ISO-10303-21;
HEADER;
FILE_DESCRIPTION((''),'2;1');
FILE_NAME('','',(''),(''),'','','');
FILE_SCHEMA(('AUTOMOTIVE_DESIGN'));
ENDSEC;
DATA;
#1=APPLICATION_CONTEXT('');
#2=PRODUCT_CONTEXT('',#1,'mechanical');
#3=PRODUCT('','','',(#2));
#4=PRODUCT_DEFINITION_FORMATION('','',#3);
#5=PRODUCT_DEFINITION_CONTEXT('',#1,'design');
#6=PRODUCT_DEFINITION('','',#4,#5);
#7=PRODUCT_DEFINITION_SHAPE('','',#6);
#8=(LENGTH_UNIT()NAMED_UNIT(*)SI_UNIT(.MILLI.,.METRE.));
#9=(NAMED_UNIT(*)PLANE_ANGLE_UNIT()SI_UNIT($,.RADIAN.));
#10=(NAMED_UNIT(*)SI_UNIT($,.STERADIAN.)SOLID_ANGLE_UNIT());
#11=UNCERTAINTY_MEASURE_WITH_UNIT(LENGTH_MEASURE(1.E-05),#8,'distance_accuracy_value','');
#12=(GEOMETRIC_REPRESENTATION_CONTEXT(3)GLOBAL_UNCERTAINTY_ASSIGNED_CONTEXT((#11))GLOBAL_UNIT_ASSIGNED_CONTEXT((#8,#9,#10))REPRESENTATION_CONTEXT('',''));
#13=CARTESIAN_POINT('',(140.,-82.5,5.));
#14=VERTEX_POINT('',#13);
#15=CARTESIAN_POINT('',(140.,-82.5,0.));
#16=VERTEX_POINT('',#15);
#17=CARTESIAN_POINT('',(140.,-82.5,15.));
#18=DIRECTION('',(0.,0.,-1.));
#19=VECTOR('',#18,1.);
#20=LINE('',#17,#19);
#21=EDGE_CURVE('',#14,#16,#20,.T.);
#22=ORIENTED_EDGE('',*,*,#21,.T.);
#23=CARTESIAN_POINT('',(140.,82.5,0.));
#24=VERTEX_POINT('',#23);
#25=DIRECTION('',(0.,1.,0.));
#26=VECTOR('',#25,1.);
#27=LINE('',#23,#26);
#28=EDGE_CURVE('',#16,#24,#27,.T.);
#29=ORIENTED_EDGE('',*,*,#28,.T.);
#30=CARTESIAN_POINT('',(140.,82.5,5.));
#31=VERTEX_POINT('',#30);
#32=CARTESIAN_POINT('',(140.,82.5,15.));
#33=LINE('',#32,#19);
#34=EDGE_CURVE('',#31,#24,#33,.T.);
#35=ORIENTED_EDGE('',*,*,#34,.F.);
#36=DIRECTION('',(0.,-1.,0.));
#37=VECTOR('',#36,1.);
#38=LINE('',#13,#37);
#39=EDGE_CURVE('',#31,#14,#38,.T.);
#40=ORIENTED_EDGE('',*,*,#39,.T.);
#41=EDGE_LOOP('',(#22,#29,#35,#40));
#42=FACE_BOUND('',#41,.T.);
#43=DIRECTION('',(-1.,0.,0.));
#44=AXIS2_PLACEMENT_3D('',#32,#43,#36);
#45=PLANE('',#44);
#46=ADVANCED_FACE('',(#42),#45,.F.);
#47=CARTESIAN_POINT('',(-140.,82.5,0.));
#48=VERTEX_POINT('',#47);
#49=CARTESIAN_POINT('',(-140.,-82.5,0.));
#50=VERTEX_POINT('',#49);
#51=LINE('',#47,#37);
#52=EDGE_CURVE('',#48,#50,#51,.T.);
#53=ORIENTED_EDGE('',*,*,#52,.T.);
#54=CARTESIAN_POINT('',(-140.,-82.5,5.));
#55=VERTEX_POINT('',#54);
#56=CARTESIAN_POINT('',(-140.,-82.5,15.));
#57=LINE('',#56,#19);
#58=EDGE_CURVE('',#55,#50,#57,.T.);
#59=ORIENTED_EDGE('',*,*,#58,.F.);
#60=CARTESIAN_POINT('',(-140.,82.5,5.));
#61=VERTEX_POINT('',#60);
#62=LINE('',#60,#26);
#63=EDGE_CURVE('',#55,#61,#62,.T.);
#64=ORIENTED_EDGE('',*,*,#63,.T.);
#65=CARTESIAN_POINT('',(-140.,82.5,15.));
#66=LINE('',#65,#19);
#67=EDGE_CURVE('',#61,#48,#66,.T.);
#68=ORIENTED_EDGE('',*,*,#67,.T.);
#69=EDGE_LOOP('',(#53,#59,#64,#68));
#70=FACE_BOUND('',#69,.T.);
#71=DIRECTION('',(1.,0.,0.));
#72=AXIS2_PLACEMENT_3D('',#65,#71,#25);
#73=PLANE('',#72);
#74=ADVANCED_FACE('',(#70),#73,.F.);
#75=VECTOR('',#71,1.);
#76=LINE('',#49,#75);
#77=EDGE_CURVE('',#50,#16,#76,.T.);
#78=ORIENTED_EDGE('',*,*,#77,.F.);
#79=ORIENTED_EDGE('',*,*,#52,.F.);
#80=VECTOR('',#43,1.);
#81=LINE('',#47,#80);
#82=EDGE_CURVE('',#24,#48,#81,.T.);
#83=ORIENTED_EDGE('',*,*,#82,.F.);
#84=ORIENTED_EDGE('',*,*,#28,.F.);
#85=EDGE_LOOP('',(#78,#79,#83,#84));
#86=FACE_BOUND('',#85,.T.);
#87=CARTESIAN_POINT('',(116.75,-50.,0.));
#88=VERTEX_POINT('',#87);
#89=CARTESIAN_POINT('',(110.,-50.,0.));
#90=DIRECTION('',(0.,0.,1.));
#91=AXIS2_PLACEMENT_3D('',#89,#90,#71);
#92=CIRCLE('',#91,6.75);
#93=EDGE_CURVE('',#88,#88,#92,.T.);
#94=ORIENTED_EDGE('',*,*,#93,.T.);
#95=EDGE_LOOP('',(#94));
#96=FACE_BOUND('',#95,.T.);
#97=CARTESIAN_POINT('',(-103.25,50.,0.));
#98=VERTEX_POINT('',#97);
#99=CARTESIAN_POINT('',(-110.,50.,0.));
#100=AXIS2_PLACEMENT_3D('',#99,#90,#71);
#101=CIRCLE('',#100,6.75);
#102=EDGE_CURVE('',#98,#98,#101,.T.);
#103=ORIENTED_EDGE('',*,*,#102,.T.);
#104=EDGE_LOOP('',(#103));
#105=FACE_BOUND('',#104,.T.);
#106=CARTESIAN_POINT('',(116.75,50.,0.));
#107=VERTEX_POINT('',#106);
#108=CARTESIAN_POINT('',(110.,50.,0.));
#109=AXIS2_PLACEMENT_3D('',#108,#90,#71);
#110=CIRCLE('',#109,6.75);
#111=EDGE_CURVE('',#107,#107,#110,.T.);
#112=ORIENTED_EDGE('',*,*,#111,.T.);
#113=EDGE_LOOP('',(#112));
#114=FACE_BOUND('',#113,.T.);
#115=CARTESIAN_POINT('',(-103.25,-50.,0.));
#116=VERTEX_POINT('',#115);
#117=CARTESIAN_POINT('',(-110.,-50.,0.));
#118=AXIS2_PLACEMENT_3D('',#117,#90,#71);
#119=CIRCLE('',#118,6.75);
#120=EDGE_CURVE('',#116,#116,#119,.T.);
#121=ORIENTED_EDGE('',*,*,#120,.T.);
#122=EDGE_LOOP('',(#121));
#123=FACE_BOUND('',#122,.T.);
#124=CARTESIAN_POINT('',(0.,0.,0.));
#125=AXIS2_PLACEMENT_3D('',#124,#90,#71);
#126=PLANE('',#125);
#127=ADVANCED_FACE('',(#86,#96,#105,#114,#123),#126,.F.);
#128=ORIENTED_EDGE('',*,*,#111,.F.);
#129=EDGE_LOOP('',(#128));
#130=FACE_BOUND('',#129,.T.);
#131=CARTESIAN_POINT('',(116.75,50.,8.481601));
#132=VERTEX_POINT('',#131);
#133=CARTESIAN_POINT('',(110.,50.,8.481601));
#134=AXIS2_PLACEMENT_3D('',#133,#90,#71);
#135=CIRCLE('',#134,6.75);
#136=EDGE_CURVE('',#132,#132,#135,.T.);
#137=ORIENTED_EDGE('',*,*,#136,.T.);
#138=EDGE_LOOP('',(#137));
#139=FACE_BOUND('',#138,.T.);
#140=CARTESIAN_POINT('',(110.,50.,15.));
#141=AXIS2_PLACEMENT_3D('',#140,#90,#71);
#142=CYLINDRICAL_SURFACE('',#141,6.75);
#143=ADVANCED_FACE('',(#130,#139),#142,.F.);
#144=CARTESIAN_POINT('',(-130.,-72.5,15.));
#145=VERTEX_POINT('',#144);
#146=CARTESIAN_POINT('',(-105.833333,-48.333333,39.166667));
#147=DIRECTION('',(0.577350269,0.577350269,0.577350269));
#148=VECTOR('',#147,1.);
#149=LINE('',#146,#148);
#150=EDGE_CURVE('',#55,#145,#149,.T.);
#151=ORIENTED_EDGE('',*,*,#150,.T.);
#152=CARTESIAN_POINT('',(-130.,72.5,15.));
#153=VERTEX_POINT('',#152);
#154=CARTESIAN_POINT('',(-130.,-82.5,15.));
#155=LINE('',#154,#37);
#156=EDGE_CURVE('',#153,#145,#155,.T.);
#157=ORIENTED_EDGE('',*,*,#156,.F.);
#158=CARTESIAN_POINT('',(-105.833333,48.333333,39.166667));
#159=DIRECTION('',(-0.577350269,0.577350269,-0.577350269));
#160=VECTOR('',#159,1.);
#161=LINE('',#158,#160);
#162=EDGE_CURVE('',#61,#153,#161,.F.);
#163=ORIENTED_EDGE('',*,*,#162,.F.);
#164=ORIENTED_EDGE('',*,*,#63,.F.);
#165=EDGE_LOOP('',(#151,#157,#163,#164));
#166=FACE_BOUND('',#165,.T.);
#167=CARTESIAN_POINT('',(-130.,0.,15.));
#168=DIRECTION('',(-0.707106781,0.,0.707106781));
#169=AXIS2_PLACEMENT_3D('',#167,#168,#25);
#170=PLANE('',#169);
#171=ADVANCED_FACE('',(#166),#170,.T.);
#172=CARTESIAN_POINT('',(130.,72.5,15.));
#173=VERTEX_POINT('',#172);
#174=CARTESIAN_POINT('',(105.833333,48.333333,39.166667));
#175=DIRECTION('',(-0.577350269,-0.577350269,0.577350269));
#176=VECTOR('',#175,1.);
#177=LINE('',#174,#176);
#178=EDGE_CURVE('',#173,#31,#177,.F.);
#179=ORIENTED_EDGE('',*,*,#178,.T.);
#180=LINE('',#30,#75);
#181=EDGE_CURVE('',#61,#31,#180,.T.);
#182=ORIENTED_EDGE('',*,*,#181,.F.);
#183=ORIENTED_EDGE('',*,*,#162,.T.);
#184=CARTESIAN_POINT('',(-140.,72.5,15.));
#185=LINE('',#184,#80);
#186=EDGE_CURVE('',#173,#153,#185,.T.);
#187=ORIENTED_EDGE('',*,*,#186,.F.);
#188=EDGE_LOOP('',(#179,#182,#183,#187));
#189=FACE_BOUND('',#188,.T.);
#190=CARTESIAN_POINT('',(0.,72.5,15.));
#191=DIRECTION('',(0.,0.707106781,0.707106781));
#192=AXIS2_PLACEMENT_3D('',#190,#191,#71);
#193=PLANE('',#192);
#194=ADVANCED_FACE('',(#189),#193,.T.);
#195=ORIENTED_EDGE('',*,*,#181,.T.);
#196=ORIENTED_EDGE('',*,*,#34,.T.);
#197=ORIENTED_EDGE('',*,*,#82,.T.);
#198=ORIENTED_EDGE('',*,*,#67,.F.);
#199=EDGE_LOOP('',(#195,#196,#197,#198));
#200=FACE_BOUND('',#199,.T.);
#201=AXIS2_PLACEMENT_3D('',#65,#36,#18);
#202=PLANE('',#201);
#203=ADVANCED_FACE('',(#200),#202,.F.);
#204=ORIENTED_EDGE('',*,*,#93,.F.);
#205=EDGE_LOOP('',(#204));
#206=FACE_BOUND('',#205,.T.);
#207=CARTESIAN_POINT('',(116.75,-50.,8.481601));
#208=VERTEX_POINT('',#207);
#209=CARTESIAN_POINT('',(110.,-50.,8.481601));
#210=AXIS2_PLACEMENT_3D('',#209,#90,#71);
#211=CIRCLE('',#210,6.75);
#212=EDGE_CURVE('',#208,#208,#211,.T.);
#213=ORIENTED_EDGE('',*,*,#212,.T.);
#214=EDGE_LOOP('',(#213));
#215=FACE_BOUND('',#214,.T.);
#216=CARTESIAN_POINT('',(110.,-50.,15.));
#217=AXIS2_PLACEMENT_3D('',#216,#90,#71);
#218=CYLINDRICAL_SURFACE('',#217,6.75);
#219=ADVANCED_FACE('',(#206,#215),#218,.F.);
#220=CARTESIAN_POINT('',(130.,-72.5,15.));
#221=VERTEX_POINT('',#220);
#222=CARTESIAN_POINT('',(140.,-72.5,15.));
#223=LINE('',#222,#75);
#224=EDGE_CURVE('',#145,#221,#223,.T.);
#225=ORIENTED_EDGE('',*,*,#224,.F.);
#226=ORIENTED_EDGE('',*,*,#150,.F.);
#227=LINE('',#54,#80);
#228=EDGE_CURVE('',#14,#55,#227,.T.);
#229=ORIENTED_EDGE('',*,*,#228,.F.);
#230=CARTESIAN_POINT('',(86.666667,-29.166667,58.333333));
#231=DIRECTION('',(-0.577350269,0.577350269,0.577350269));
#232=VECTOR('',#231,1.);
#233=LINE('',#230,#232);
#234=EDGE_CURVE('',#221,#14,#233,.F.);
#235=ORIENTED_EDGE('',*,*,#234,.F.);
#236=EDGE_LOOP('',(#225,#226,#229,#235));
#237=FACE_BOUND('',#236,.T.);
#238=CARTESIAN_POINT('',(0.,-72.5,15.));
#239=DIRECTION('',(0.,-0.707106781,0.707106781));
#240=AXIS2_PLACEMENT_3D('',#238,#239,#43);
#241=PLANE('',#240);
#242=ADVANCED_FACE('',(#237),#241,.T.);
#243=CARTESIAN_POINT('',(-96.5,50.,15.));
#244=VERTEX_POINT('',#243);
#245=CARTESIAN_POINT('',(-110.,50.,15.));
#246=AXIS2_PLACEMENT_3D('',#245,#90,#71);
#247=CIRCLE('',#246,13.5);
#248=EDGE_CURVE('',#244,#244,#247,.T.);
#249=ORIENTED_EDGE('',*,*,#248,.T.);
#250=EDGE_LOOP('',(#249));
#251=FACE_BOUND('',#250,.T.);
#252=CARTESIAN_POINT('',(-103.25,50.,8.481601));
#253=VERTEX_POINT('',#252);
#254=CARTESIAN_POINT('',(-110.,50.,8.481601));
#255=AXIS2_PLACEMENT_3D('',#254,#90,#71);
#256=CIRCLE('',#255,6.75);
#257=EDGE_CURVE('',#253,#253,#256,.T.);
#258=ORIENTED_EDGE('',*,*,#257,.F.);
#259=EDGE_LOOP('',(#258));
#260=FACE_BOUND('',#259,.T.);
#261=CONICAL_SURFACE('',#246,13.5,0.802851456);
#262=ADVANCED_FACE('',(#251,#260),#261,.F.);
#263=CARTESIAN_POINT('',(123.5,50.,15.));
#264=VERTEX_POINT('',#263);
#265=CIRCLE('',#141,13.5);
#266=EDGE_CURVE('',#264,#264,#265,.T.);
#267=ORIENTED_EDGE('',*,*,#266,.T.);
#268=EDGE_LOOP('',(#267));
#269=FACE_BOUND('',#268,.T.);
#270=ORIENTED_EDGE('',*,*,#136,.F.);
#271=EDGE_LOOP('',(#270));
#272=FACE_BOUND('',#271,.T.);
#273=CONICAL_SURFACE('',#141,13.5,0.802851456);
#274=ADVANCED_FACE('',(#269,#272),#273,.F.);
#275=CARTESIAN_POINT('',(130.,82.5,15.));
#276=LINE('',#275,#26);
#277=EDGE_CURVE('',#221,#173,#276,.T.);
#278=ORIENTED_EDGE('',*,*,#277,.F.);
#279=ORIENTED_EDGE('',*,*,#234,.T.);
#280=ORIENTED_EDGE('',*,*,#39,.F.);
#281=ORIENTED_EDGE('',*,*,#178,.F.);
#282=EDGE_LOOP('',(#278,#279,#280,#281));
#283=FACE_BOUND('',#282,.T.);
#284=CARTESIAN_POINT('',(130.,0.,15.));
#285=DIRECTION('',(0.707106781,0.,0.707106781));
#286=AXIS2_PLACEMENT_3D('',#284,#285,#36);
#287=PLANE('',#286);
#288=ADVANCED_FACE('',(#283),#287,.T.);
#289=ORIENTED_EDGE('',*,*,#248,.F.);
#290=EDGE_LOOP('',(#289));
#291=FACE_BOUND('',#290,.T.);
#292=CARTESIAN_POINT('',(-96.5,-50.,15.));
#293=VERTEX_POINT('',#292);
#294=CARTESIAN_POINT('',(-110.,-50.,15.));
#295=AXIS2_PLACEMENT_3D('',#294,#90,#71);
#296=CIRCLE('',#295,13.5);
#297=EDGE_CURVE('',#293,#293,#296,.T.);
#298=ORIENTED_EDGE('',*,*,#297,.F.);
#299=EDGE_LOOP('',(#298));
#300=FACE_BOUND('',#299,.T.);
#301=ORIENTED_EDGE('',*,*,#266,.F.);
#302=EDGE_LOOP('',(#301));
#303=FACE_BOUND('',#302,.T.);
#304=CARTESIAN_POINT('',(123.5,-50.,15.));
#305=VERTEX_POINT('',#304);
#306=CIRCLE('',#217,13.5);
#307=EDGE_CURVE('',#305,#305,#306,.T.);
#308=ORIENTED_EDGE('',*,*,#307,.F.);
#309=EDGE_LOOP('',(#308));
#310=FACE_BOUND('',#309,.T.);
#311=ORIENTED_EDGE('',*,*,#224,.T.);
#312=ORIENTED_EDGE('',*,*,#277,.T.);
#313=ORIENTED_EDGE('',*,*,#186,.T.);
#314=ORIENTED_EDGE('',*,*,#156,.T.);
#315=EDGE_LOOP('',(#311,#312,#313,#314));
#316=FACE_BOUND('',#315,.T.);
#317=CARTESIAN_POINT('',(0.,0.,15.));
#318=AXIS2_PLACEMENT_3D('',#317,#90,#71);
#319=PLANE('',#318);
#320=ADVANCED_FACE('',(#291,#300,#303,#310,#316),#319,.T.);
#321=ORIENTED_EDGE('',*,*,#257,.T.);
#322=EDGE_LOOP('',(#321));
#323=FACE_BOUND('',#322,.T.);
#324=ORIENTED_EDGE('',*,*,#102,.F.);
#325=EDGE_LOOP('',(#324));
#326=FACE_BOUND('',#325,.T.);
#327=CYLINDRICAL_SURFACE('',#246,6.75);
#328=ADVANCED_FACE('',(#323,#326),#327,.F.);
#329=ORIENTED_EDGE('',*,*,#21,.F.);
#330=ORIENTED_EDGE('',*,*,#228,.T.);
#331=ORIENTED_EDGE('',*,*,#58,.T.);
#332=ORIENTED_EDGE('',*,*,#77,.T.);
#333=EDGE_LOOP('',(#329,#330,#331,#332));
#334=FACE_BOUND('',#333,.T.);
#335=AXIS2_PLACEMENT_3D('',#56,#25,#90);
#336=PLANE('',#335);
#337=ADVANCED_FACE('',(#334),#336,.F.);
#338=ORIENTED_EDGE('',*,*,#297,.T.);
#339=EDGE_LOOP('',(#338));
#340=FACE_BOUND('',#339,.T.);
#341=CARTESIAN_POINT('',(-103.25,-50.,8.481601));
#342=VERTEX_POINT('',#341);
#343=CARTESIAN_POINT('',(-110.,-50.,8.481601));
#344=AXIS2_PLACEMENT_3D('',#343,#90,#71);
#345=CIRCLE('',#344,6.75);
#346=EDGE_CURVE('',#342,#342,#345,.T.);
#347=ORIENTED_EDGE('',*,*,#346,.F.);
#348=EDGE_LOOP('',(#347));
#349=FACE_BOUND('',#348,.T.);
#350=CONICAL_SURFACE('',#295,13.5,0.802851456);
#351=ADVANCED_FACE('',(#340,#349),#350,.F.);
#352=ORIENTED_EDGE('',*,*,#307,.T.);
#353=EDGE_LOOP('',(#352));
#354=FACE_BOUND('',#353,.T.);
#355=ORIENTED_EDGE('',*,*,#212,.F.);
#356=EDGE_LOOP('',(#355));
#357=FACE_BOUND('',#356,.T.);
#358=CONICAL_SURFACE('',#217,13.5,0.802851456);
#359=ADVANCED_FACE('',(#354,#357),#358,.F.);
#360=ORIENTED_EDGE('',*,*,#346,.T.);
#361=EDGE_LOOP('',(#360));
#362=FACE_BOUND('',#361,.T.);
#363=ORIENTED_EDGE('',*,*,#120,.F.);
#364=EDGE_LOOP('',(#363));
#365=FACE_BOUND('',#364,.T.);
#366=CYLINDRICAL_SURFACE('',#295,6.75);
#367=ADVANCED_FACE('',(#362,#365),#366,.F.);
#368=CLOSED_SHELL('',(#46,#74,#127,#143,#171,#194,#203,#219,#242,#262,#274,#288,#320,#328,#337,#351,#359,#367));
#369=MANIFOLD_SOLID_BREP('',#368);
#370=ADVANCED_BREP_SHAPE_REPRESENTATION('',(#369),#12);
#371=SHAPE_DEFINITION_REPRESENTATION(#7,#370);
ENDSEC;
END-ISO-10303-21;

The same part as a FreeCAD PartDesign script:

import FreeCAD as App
import Part
import Sketcher
from FreeCAD import Vector


def edges_at(feature, points):
    """Names of the edges that pass closest to the given points."""
    edges = feature.Shape.Edges
    near = lambda p: min(range(len(edges)), key=lambda i: edges[i].distToShape(Part.Vertex(*p))[0])
    return sorted({f"Edge{near(p) + 1}" for p in points})

doc = App.newDocument("Part")
body = doc.addObject("PartDesign::Body", "Body")

# Sketch on XY plane
sketch1 = doc.addObject("Sketcher::SketchObject", "Sketch")
body.addObject(sketch1)
sketch1.AttachmentSupport = (doc.XY_Plane, [""])
sketch1.MapMode = "FlatFace"
sketch1.addGeometry([
    Part.LineSegment(Vector(-140, 82.5, 0), Vector(-140, -82.5, 0)),
    Part.LineSegment(Vector(-140, -82.5, 0), Vector(140, -82.5, 0)),
    Part.LineSegment(Vector(140, -82.5, 0), Vector(140, 82.5, 0)),
    Part.LineSegment(Vector(140, 82.5, 0), Vector(-140, 82.5, 0)),
], False)
sketch1.addConstraint([
    Sketcher.Constraint("Coincident", 0, 2, 1, 1),
    Sketcher.Constraint("Coincident", 1, 2, 2, 1),
    Sketcher.Constraint("Coincident", 2, 2, 3, 1),
    Sketcher.Constraint("Coincident", 3, 2, 0, 1),
    Sketcher.Constraint("Vertical", 0),
    Sketcher.Constraint("Horizontal", 1),
    Sketcher.Constraint("Vertical", 2),
    Sketcher.Constraint("Horizontal", 3),
    Sketcher.Constraint("Symmetric", 0, 2, 2, 2, -1, 1),
    Sketcher.Constraint("DistanceX", 1, 1, 1, 2, 280.0),
    Sketcher.Constraint("DistanceY", 0, 2, 0, 1, 165.0),
])
pad1 = doc.addObject("PartDesign::Pad", "Pad")
body.addObject(pad1)
pad1.Profile = sketch1
pad1.Length = 15
doc.recompute()

chamfer = doc.addObject("PartDesign::Chamfer", "Chamfer")
body.addObject(chamfer)
chamfer.Base = (pad1, edges_at(pad1, [
    (-140, 0, 15),
    (0, -82.5, 15),
    (140, 0, 15),
    (0, 82.5, 15),
]))
chamfer.Size = 10

# Sketch on XY plane
sketch2 = doc.addObject("Sketcher::SketchObject", "Sketch001")
body.addObject(sketch2)
sketch2.AttachmentSupport = (doc.XY_Plane, [""])
sketch2.MapMode = "FlatFace"
sketch2.AttachmentOffset = App.Placement(Vector(0, 0, 15), App.Rotation())
sketch2.addGeometry([
    Part.Circle(Vector(-110, 50, 0), Vector(0, 0, 1), 6.75),
    Part.Circle(Vector(110, 50, 0), Vector(0, 0, 1), 6.75),
    Part.Circle(Vector(110, -50, 0), Vector(0, 0, 1), 6.75),
    Part.Circle(Vector(-110, -50, 0), Vector(0, 0, 1), 6.75),
], False)
sketch2.addConstraint([
    Sketcher.Constraint("Equal", 0, 1),
    Sketcher.Constraint("Equal", 1, 2),
    Sketcher.Constraint("Equal", 2, 3),
    Sketcher.Constraint("Symmetric", 0, 3, 2, 3, -1, 1),
    Sketcher.Constraint("Symmetric", 1, 3, 3, 3, -1, 1),
    Sketcher.Constraint("Symmetric", 0, 3, 1, 3, -2),
    Sketcher.Constraint("Diameter", 0, 13.5),
    Sketcher.Constraint("DistanceX", 0, 3, -1, 1, 110.0),
    Sketcher.Constraint("DistanceY", -1, 1, 0, 3, 50.0),
])
doc.recompute()
hole = doc.addObject("PartDesign::Hole", "Hole")
body.addObject(hole)
hole.Profile = sketch2
hole.ThreadType = "None"
hole.Diameter = 13.5
hole.DepthType = "Dimension"
hole.Depth = 20
hole.DrillPoint = "Angled"
hole.DrillPointAngle = 118
hole.HoleCutType = "Countersink"
hole.HoleCutDiameter = 27
hole.HoleCutCountersinkAngle = 92

doc.recompute()
